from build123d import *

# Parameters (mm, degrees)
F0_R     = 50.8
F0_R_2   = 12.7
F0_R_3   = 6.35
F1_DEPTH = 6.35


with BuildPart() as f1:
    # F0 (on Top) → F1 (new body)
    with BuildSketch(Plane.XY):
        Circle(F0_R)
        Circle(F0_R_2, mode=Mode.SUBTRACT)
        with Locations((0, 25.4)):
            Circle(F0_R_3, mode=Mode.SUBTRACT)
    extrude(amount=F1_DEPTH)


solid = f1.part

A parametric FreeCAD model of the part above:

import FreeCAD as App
import Part
import Sketcher

V = App.Vector
Q = App.Units.Quantity

doc = App.newDocument("Part")
body = doc.addObject("PartDesign::Body", "Body")

# Sketch on XY plane
sketch1 = body.newObject("Sketcher::SketchObject", "Sketch")
sketch1.AttachmentSupport = (doc.getObject("XY_Plane"), [""])
sketch1.MapMode = "FlatFace"
sketch1.addGeometry([
    Part.Circle(V(0, 0, 0), V(0, 0, 1), 51),
    Part.Circle(V(0, 0, 0), V(0, 0, 1), 13),
    Part.Circle(V(0, 25, 0), V(0, 0, 1), 6),
], False)
sketch1.addConstraint([
    Sketcher.Constraint("Coincident", 0, 3, -1, 1),
    Sketcher.Constraint("Coincident", 1, 3, -1, 1),
    Sketcher.Constraint("PointOnObject", 2, 3, -2),
    Sketcher.Constraint("Diameter", 0, Q("4 in")),
    Sketcher.Constraint("Diameter", 1, Q("1 in")),
    Sketcher.Constraint("Diameter", 2, Q("0.5 in")),
    Sketcher.Constraint("DistanceY", -1, 1, 2, 3, Q("1 in")),
])
pad1 = body.newObject("PartDesign::Pad", "Pad")
pad1.Profile = sketch1
pad1.Length = Q("0.25 in")

doc.recompute()
